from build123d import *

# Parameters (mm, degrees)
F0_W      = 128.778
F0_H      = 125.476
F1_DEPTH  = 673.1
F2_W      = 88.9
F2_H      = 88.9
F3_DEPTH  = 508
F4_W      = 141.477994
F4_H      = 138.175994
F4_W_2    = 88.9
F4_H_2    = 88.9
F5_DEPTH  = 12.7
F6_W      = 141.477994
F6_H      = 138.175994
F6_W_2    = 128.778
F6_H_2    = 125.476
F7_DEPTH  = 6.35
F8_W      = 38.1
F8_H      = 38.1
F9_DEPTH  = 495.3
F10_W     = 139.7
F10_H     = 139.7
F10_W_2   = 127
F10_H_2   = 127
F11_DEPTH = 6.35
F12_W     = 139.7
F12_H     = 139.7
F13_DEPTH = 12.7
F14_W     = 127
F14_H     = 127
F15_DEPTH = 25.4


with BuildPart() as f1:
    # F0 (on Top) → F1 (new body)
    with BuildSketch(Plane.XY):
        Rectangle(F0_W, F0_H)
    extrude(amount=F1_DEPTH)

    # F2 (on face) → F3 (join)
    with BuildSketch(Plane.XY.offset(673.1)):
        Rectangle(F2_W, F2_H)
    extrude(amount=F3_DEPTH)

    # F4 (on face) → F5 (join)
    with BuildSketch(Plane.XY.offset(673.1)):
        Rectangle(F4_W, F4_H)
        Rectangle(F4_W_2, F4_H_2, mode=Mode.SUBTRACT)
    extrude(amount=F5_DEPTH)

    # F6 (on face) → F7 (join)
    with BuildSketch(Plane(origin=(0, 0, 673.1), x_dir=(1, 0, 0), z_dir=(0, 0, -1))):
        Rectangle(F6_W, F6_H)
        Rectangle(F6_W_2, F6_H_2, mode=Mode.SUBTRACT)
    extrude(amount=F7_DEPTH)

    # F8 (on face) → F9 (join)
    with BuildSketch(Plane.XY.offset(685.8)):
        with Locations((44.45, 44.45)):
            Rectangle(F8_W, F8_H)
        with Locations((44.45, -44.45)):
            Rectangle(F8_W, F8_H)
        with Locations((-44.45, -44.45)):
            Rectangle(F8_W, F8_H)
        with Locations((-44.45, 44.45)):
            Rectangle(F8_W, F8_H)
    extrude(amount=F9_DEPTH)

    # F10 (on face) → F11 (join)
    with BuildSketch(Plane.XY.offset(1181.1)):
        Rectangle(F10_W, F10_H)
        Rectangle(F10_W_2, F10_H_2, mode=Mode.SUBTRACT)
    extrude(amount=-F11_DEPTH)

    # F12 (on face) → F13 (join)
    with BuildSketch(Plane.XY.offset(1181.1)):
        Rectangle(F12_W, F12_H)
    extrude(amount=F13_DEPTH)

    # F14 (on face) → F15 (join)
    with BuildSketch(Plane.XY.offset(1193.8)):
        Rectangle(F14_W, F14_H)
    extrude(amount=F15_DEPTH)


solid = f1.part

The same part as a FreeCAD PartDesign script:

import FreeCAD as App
import Part
import Sketcher
from FreeCAD import Vector
Q = App.Units.Quantity

doc = App.newDocument("Part")
params = doc.addObject("Spreadsheet::Sheet", "Params")
for row, (alias, value) in enumerate([
    ("sketch1_width", "5.07 in"),
    ("sketch1_height", "4.94 in"),
    ("pad1_length", "26.5 in"),
    ("sketch2_width", "3.5 in"),
    ("pad2_length", "20 in"),
    ("sketch3_width", "3.5 in"),
    ("pad3_length", "0.5 in"),
    ("sketch4_width", "5.07 in"),
    ("sketch4_height", "4.94 in"),
    ("pad4_length", "0.25 in"),
    ("sketch5_width", "1.5 in"),
    ("pad5_length", "19.5 in"),
    ("sketch6_width", "5 in"),
    ("sketch6_width2", "5.5 in"),
    ("pad6_length", "0.25 in"),
    ("sketch7_width", "5.5 in"),
    ("pad7_length", "0.5 in"),
    ("sketch8_width", "5 in"),
    ("pad8_length", "1 in"),
], start=1):
    params.set(f"A{row}", alias)
    params.set(f"B{row}", "=" + value)
    params.setAlias(f"B{row}", alias)

body = doc.addObject("PartDesign::Body", "Body")

sketch1 = doc.addObject("Sketcher::SketchObject", "Sketch")
body.addObject(sketch1)
sketch1.AttachmentSupport = (doc.XY_Plane, [""])
sketch1.MapMode = "FlatFace"
sketch1.addGeometry([
    Part.LineSegment(Vector(-64, 63, 0), Vector(-64, -63, 0)),
    Part.LineSegment(Vector(-64, -63, 0), Vector(64, -63, 0)),
    Part.LineSegment(Vector(64, -63, 0), Vector(64, 63, 0)),
    Part.LineSegment(Vector(64, 63, 0), Vector(-64, 63, 0)),
], False)
sketch1.addConstraint([
    Sketcher.Constraint("Coincident", 0, 2, 1, 1),
    Sketcher.Constraint("Coincident", 1, 2, 2, 1),
    Sketcher.Constraint("Coincident", 2, 2, 3, 1),
    Sketcher.Constraint("Coincident", 3, 2, 0, 1),
    Sketcher.Constraint("Vertical", 0),
    Sketcher.Constraint("Horizontal", 1),
    Sketcher.Constraint("Vertical", 2),
    Sketcher.Constraint("Horizontal", 3),
    Sketcher.Constraint("Symmetric", 0, 2, 2, 2, -1, 1),
    Sketcher.Constraint("DistanceX", 1, 1, 1, 2, Q("5.07 in")),
    Sketcher.Constraint("DistanceY", 0, 2, 0, 1, Q("4.94 in")),
])
sketch1.setExpression("Constraints[9]", "Params.sketch1_width")
sketch1.setExpression("Constraints[10]", "Params.sketch1_height")
pad1 = doc.addObject("PartDesign::Pad", "Pad")
body.addObject(pad1)
pad1.Profile = sketch1
pad1.setExpression("Length", "Params.pad1_length")

sketch2 = doc.addObject("Sketcher::SketchObject", "Sketch001")
body.addObject(sketch2)
sketch2.AttachmentSupport = (doc.XY_Plane, [""])
sketch2.MapMode = "FlatFace"
sketch2.AttachmentOffset = App.Placement(Vector(0, 0, 26.5 * 25.4), App.Rotation())
sketch2.addGeometry([
    Part.LineSegment(Vector(-44, 44, 0), Vector(-44, -44, 0)),
    Part.LineSegment(Vector(-44, -44, 0), Vector(44, -44, 0)),
    Part.LineSegment(Vector(44, -44, 0), Vector(44, 44, 0)),
    Part.LineSegment(Vector(44, 44, 0), Vector(-44, 44, 0)),
], False)
sketch2.addConstraint([
    Sketcher.Constraint("Coincident", 0, 2, 1, 1),
    Sketcher.Constraint("Coincident", 1, 2, 2, 1),
    Sketcher.Constraint("Coincident", 2, 2, 3, 1),
    Sketcher.Constraint("Coincident", 3, 2, 0, 1),
    Sketcher.Constraint("Vertical", 0),
    Sketcher.Constraint("Horizontal", 1),
    Sketcher.Constraint("Vertical", 2),
    Sketcher.Constraint("Horizontal", 3),
    Sketcher.Constraint("Symmetric", 0, 2, 2, 2, -1, 1),
    Sketcher.Constraint("Equal", 3, 0),
    Sketcher.Constraint("DistanceX", 1, 1, 1, 2, Q("3.5 in")),
])
sketch2.setExpression("Constraints[10]", "Params.sketch2_width")
pad2 = doc.addObject("PartDesign::Pad", "Pad001")
body.addObject(pad2)
pad2.Profile = sketch2
pad2.setExpression("Length", "Params.pad2_length")

sketch3 = doc.addObject("Sketcher::SketchObject", "Sketch002")
body.addObject(sketch3)
sketch3.AttachmentSupport = (doc.XY_Plane, [""])
sketch3.MapMode = "FlatFace"
sketch3.AttachmentOffset = App.Placement(Vector(0, 0, 26.5 * 25.4), App.Rotation())
sketch3.addGeometry([
    Part.LineSegment(Vector(-71, 69, 0), Vector(-71, -69, 0)),
    Part.LineSegment(Vector(-71, -69, 0), Vector(71, -69, 0)),
    Part.LineSegment(Vector(71, -69, 0), Vector(71, 69, 0)),
    Part.LineSegment(Vector(71, 69, 0), Vector(-71, 69, 0)),
    Part.LineSegment(Vector(44, -44, 0), Vector(-44, -44, 0)),
    Part.LineSegment(Vector(-44, -44, 0), Vector(-44, 44, 0)),
    Part.LineSegment(Vector(-44, 44, 0), Vector(44, 44, 0)),
    Part.LineSegment(Vector(44, 44, 0), Vector(44, -44, 0)),
], False)
sketch3.addConstraint([
    Sketcher.Constraint("Coincident", 0, 2, 1, 1),
    Sketcher.Constraint("Coincident", 1, 2, 2, 1),
    Sketcher.Constraint("Coincident", 2, 2, 3, 1),
    Sketcher.Constraint("Coincident", 3, 2, 0, 1),
    Sketcher.Constraint("Coincident", 4, 2, 5, 1),
    Sketcher.Constraint("Coincident", 5, 2, 6, 1),
    Sketcher.Constraint("Coincident", 6, 2, 7, 1),
    Sketcher.Constraint("Coincident", 7, 2, 4, 1),
    Sketcher.Constraint("Vertical", 0),
    Sketcher.Constraint("Horizontal", 1),
    Sketcher.Constraint("Vertical", 2),
    Sketcher.Constraint("Horizontal", 3),
    Sketcher.Constraint("Horizontal", 4),
    Sketcher.Constraint("Vertical", 5),
    Sketcher.Constraint("Horizontal", 6),
    Sketcher.Constraint("Vertical", 7),
    Sketcher.Constraint("Symmetric", 0, 2, 2, 2, -1, 1),
    Sketcher.Constraint("Symmetric", 4, 2, 6, 2, -1, 1),
    Sketcher.Constraint("Equal", 6, 5),
    Sketcher.Constraint("DistanceX", 4, 2, 4, 1, Q("3.5 in")),
    Sketcher.Constraint("DistanceY", 0, 2, -1, 1, Q("2.7199999 in")),
    Sketcher.Constraint("DistanceX", 0, 2, -1, 1, Q("2.7849999 in")),
])
sketch3.setExpression("Constraints[19]", "Params.sketch3_width")
pad3 = doc.addObject("PartDesign::Pad", "Pad002")
body.addObject(pad3)
pad3.Profile = sketch3
pad3.setExpression("Length", "Params.pad3_length")

sketch4 = doc.addObject("Sketcher::SketchObject", "Sketch003")
body.addObject(sketch4)
sketch4.AttachmentSupport = (doc.XY_Plane, [""])
sketch4.MapMode = "FlatFace"
sketch4.AttachmentOffset = App.Placement(Vector(0, 0, 26.5 * 25.4), App.Rotation())
sketch4.addGeometry([
    Part.LineSegment(Vector(-71, -69, 0), Vector(-71, 69, 0)),
    Part.LineSegment(Vector(-71, 69, 0), Vector(71, 69, 0)),
    Part.LineSegment(Vector(71, 69, 0), Vector(71, -69, 0)),
    Part.LineSegment(Vector(71, -69, 0), Vector(-71, -69, 0)),
    Part.LineSegment(Vector(64, 63, 0), Vector(-64, 63, 0)),
    Part.LineSegment(Vector(-64, 63, 0), Vector(-64, -63, 0)),
    Part.LineSegment(Vector(-64, -63, 0), Vector(64, -63, 0)),
    Part.LineSegment(Vector(64, -63, 0), Vector(64, 63, 0)),
], False)
sketch4.addConstraint([
    Sketcher.Constraint("Coincident", 0, 2, 1, 1),
    Sketcher.Constraint("Coincident", 1, 2, 2, 1),
    Sketcher.Constraint("Coincident", 2, 2, 3, 1),
    Sketcher.Constraint("Coincident", 3, 2, 0, 1),
    Sketcher.Constraint("Coincident", 4, 2, 5, 1),
    Sketcher.Constraint("Coincident", 5, 2, 6, 1),
    Sketcher.Constraint("Coincident", 6, 2, 7, 1),
    Sketcher.Constraint("Coincident", 7, 2, 4, 1),
    Sketcher.Constraint("Vertical", 0),
    Sketcher.Constraint("Horizontal", 1),
    Sketcher.Constraint("Vertical", 2),
    Sketcher.Constraint("Horizontal", 3),
    Sketcher.Constraint("Horizontal", 4),
    Sketcher.Constraint("Vertical", 5),
    Sketcher.Constraint("Horizontal", 6),
    Sketcher.Constraint("Vertical", 7),
    Sketcher.Constraint("Symmetric", 0, 2, 2, 2, -1, 1),
    Sketcher.Constraint("Symmetric", 4, 2, 6, 2, -1, 1),
    Sketcher.Constraint("DistanceX", 4, 2, 4, 1, Q("5.07 in")),
    Sketcher.Constraint("DistanceY", 5, 2, 5, 1, Q("4.94 in")),
    Sketcher.Constraint("DistanceY", -1, 1, 0, 2, Q("2.7199999 in")),
    Sketcher.Constraint("DistanceX", 0, 2, 4, 2, Q("0.2499999 in")),
])
sketch4.setExpression("Constraints[18]", "Params.sketch4_width")
sketch4.setExpression("Constraints[19]", "Params.sketch4_height")
pad4 = doc.addObject("PartDesign::Pad", "Pad003")
body.addObject(pad4)
pad4.Profile = sketch4
pad4.setExpression("Length", "Params.pad4_length")
pad4.Reversed = True

sketch5 = doc.addObject("Sketcher::SketchObject", "Sketch004")
body.addObject(sketch5)
sketch5.AttachmentSupport = (doc.XY_Plane, [""])
sketch5.MapMode = "FlatFace"
sketch5.AttachmentOffset = App.Placement(Vector(0, 0, 27 * 25.4), App.Rotation())
sketch5.addGeometry([
    Part.LineSegment(Vector(25, 64, 0), Vector(25, 25, 0)),
    Part.LineSegment(Vector(25, 25, 0), Vector(64, 25, 0)),
    Part.LineSegment(Vector(64, 25, 0), Vector(64, 64, 0)),
    Part.LineSegment(Vector(64, 64, 0), Vector(25, 64, 0)),
    Part.LineSegment(Vector(25, -25, 0), Vector(25, -64, 0)),
    Part.LineSegment(Vector(25, -64, 0), Vector(64, -64, 0)),
    Part.LineSegment(Vector(64, -64, 0), Vector(64, -25, 0)),
    Part.LineSegment(Vector(64, -25, 0), Vector(25, -25, 0)),
    Part.LineSegment(Vector(-64, -25, 0), Vector(-64, -64, 0)),
    Part.LineSegment(Vector(-64, -64, 0), Vector(-25, -64, 0)),
    Part.LineSegment(Vector(-25, -64, 0), Vector(-25, -25, 0)),
    Part.LineSegment(Vector(-25, -25, 0), Vector(-64, -25, 0)),
    Part.LineSegment(Vector(-64, 64, 0), Vector(-64, 25, 0)),
    Part.LineSegment(Vector(-64, 25, 0), Vector(-25, 25, 0)),
    Part.LineSegment(Vector(-25, 25, 0), Vector(-25, 64, 0)),
    Part.LineSegment(Vector(-25, 64, 0), Vector(-64, 64, 0)),
], False)
sketch5.addConstraint([
    Sketcher.Constraint("Coincident", 0, 2, 1, 1),
    Sketcher.Constraint("Coincident", 1, 2, 2, 1),
    Sketcher.Constraint("Coincident", 2, 2, 3, 1),
    Sketcher.Constraint("Coincident", 3, 2, 0, 1),
    Sketcher.Constraint("Coincident", 4, 2, 5, 1),
    Sketcher.Constraint("Coincident", 5, 2, 6, 1),
    Sketcher.Constraint("Coincident", 6, 2, 7, 1),
    Sketcher.Constraint("Coincident", 7, 2, 4, 1),
    Sketcher.Constraint("Coincident", 8, 2, 9, 1),
    Sketcher.Constraint("Coincident", 9, 2, 10, 1),
    Sketcher.Constraint("Coincident", 10, 2, 11, 1),
    Sketcher.Constraint("Coincident", 11, 2, 8, 1),
    Sketcher.Constraint("Coincident", 12, 2, 13, 1),
    Sketcher.Constraint("Coincident", 13, 2, 14, 1),
    Sketcher.Constraint("Coincident", 14, 2, 15, 1),
    Sketcher.Constraint("Coincident", 15, 2, 12, 1),
    Sketcher.Constraint("Vertical", 0),
    Sketcher.Constraint("Horizontal", 1),
    Sketcher.Constraint("Vertical", 2),
    Sketcher.Constraint("Horizontal", 3),
    Sketcher.Constraint("Vertical", 4),
    Sketcher.Constraint("Horizontal", 5),
    Sketcher.Constraint("Vertical", 6),
    Sketcher.Constraint("Horizontal", 7),
    Sketcher.Constraint("Vertical", 8),
    Sketcher.Constraint("Horizontal", 9),
    Sketcher.Constraint("Vertical", 10),
    Sketcher.Constraint("Horizontal", 11),
    Sketcher.Constraint("Vertical", 12),
    Sketcher.Constraint("Horizontal", 13),
    Sketcher.Constraint("Vertical", 14),
    Sketcher.Constraint("Horizontal", 15),
    Sketcher.Constraint("Symmetric", 2, 2, 8, 2, -1, 1),
    Sketcher.Constraint("Symmetric", 0, 2, 10, 2, -1, 1),
    Sketcher.Constraint("Symmetric", 6, 2, 12, 2, -1, 1),
    Sketcher.Constraint("Symmetric", 4, 2, 14, 2, -1, 1),
    Sketcher.Constraint("Symmetric", 5, 2, 8, 2, -2),
    Sketcher.Constraint("Symmetric", 7, 2, 10, 2, -2),
    Sketcher.Constraint("Equal", 15, 0),
    Sketcher.Constraint("DistanceX", 1, 1, 1, 2, Q("1.5 in")),
    Sketcher.Constraint("DistanceX", -1, 1, 0, 2, Q("1 in")),
    Sketcher.Constraint("DistanceY", -1, 1, 0, 2, Q("1 in")),
])
sketch5.setExpression("Constraints[39]", "Params.sketch5_width")
pad5 = doc.addObject("PartDesign::Pad", "Pad004")
body.addObject(pad5)
pad5.Profile = sketch5
pad5.setExpression("Length", "Params.pad5_length")

sketch6 = doc.addObject("Sketcher::SketchObject", "Sketch005")
body.addObject(sketch6)
sketch6.AttachmentSupport = (doc.XY_Plane, [""])
sketch6.MapMode = "FlatFace"
sketch6.AttachmentOffset = App.Placement(Vector(0, 0, 46.5 * 25.4), App.Rotation())
sketch6.addGeometry([
    Part.LineSegment(Vector(-70, 70, 0), Vector(-70, -70, 0)),
    Part.LineSegment(Vector(-70, -70, 0), Vector(70, -70, 0)),
    Part.LineSegment(Vector(70, -70, 0), Vector(70, 70, 0)),
    Part.LineSegment(Vector(70, 70, 0), Vector(-70, 70, 0)),
    Part.LineSegment(Vector(64, -64, 0), Vector(-64, -64, 0)),
    Part.LineSegment(Vector(-64, -64, 0), Vector(-64, 64, 0)),
    Part.LineSegment(Vector(-64, 64, 0), Vector(64, 64, 0)),
    Part.LineSegment(Vector(64, 64, 0), Vector(64, -64, 0)),
], False)
sketch6.addConstraint([
    Sketcher.Constraint("Coincident", 0, 2, 1, 1),
    Sketcher.Constraint("Coincident", 1, 2, 2, 1),
    Sketcher.Constraint("Coincident", 2, 2, 3, 1),
    Sketcher.Constraint("Coincident", 3, 2, 0, 1),
    Sketcher.Constraint("Coincident", 4, 2, 5, 1),
    Sketcher.Constraint("Coincident", 5, 2, 6, 1),
    Sketcher.Constraint("Coincident", 6, 2, 7, 1),
    Sketcher.Constraint("Coincident", 7, 2, 4, 1),
    Sketcher.Constraint("Vertical", 0),
    Sketcher.Constraint("Horizontal", 1),
    Sketcher.Constraint("Vertical", 2),
    Sketcher.Constraint("Horizontal", 3),
    Sketcher.Constraint("Horizontal", 4),
    Sketcher.Constraint("Vertical", 5),
    Sketcher.Constraint("Horizontal", 6),
    Sketcher.Constraint("Vertical", 7),
    Sketcher.Constraint("Symmetric", 0, 2, 2, 2, -1, 1),
    Sketcher.Constraint("Symmetric", 4, 2, 6, 2, -1, 1),
    Sketcher.Constraint("Equal", 3, 0),
    Sketcher.Constraint("Equal", 6, 5),
    Sketcher.Constraint("DistanceX", 4, 2, 4, 1, Q("5 in")),
    Sketcher.Constraint("DistanceX", 1, 1, 1, 2, Q("5.5 in")),
])
sketch6.setExpression("Constraints[20]", "Params.sketch6_width")
sketch6.setExpression("Constraints[21]", "Params.sketch6_width2")
pad6 = doc.addObject("PartDesign::Pad", "Pad005")
body.addObject(pad6)
pad6.Profile = sketch6
pad6.setExpression("Length", "Params.pad6_length")
pad6.Reversed = True

sketch7 = doc.addObject("Sketcher::SketchObject", "Sketch006")
body.addObject(sketch7)
sketch7.AttachmentSupport = (doc.XY_Plane, [""])
sketch7.MapMode = "FlatFace"
sketch7.AttachmentOffset = App.Placement(Vector(0, 0, 46.5 * 25.4), App.Rotation())
sketch7.addGeometry([
    Part.LineSegment(Vector(-70, 70, 0), Vector(-70, -70, 0)),
    Part.LineSegment(Vector(-70, -70, 0), Vector(70, -70, 0)),
    Part.LineSegment(Vector(70, -70, 0), Vector(70, 70, 0)),
    Part.LineSegment(Vector(70, 70, 0), Vector(-70, 70, 0)),
], False)
sketch7.addConstraint([
    Sketcher.Constraint("Coincident", 0, 2, 1, 1),
    Sketcher.Constraint("Coincident", 1, 2, 2, 1),
    Sketcher.Constraint("Coincident", 2, 2, 3, 1),
    Sketcher.Constraint("Coincident", 3, 2, 0, 1),
    Sketcher.Constraint("Vertical", 0),
    Sketcher.Constraint("Horizontal", 1),
    Sketcher.Constraint("Vertical", 2),
    Sketcher.Constraint("Horizontal", 3),
    Sketcher.Constraint("Symmetric", 0, 2, 2, 2, -1, 1),
    Sketcher.Constraint("Equal", 3, 0),
    Sketcher.Constraint("DistanceX", 1, 1, 1, 2, Q("5.5 in")),
])
sketch7.setExpression("Constraints[10]", "Params.sketch7_width")
pad7 = doc.addObject("PartDesign::Pad", "Pad006")
body.addObject(pad7)
pad7.Profile = sketch7
pad7.setExpression("Length", "Params.pad7_length")

sketch8 = doc.addObject("Sketcher::SketchObject", "Sketch007")
body.addObject(sketch8)
sketch8.AttachmentSupport = (doc.XY_Plane, [""])
sketch8.MapMode = "FlatFace"
sketch8.AttachmentOffset = App.Placement(Vector(0, 0, 47 * 25.4), App.Rotation())
sketch8.addGeometry([
    Part.LineSegment(Vector(-64, 64, 0), Vector(-64, -64, 0)),
    Part.LineSegment(Vector(-64, -64, 0), Vector(64, -64, 0)),
    Part.LineSegment(Vector(64, -64, 0), Vector(64, 64, 0)),
    Part.LineSegment(Vector(64, 64, 0), Vector(-64, 64, 0)),
], False)
sketch8.addConstraint([
    Sketcher.Constraint("Coincident", 0, 2, 1, 1),
    Sketcher.Constraint("Coincident", 1, 2, 2, 1),
    Sketcher.Constraint("Coincident", 2, 2, 3, 1),
    Sketcher.Constraint("Coincident", 3, 2, 0, 1),
    Sketcher.Constraint("Vertical", 0),
    Sketcher.Constraint("Horizontal", 1),
    Sketcher.Constraint("Vertical", 2),
    Sketcher.Constraint("Horizontal", 3),
    Sketcher.Constraint("Symmetric", 0, 2, 2, 2, -1, 1),
    Sketcher.Constraint("Equal", 3, 0),
    Sketcher.Constraint("DistanceX", 1, 1, 1, 2, Q("5 in")),
])
sketch8.setExpression("Constraints[10]", "Params.sketch8_width")
pad8 = doc.addObject("PartDesign::Pad", "Pad007")
body.addObject(pad8)
pad8.Profile = sketch8
pad8.setExpression("Length", "Params.pad8_length")

doc.recompute()
